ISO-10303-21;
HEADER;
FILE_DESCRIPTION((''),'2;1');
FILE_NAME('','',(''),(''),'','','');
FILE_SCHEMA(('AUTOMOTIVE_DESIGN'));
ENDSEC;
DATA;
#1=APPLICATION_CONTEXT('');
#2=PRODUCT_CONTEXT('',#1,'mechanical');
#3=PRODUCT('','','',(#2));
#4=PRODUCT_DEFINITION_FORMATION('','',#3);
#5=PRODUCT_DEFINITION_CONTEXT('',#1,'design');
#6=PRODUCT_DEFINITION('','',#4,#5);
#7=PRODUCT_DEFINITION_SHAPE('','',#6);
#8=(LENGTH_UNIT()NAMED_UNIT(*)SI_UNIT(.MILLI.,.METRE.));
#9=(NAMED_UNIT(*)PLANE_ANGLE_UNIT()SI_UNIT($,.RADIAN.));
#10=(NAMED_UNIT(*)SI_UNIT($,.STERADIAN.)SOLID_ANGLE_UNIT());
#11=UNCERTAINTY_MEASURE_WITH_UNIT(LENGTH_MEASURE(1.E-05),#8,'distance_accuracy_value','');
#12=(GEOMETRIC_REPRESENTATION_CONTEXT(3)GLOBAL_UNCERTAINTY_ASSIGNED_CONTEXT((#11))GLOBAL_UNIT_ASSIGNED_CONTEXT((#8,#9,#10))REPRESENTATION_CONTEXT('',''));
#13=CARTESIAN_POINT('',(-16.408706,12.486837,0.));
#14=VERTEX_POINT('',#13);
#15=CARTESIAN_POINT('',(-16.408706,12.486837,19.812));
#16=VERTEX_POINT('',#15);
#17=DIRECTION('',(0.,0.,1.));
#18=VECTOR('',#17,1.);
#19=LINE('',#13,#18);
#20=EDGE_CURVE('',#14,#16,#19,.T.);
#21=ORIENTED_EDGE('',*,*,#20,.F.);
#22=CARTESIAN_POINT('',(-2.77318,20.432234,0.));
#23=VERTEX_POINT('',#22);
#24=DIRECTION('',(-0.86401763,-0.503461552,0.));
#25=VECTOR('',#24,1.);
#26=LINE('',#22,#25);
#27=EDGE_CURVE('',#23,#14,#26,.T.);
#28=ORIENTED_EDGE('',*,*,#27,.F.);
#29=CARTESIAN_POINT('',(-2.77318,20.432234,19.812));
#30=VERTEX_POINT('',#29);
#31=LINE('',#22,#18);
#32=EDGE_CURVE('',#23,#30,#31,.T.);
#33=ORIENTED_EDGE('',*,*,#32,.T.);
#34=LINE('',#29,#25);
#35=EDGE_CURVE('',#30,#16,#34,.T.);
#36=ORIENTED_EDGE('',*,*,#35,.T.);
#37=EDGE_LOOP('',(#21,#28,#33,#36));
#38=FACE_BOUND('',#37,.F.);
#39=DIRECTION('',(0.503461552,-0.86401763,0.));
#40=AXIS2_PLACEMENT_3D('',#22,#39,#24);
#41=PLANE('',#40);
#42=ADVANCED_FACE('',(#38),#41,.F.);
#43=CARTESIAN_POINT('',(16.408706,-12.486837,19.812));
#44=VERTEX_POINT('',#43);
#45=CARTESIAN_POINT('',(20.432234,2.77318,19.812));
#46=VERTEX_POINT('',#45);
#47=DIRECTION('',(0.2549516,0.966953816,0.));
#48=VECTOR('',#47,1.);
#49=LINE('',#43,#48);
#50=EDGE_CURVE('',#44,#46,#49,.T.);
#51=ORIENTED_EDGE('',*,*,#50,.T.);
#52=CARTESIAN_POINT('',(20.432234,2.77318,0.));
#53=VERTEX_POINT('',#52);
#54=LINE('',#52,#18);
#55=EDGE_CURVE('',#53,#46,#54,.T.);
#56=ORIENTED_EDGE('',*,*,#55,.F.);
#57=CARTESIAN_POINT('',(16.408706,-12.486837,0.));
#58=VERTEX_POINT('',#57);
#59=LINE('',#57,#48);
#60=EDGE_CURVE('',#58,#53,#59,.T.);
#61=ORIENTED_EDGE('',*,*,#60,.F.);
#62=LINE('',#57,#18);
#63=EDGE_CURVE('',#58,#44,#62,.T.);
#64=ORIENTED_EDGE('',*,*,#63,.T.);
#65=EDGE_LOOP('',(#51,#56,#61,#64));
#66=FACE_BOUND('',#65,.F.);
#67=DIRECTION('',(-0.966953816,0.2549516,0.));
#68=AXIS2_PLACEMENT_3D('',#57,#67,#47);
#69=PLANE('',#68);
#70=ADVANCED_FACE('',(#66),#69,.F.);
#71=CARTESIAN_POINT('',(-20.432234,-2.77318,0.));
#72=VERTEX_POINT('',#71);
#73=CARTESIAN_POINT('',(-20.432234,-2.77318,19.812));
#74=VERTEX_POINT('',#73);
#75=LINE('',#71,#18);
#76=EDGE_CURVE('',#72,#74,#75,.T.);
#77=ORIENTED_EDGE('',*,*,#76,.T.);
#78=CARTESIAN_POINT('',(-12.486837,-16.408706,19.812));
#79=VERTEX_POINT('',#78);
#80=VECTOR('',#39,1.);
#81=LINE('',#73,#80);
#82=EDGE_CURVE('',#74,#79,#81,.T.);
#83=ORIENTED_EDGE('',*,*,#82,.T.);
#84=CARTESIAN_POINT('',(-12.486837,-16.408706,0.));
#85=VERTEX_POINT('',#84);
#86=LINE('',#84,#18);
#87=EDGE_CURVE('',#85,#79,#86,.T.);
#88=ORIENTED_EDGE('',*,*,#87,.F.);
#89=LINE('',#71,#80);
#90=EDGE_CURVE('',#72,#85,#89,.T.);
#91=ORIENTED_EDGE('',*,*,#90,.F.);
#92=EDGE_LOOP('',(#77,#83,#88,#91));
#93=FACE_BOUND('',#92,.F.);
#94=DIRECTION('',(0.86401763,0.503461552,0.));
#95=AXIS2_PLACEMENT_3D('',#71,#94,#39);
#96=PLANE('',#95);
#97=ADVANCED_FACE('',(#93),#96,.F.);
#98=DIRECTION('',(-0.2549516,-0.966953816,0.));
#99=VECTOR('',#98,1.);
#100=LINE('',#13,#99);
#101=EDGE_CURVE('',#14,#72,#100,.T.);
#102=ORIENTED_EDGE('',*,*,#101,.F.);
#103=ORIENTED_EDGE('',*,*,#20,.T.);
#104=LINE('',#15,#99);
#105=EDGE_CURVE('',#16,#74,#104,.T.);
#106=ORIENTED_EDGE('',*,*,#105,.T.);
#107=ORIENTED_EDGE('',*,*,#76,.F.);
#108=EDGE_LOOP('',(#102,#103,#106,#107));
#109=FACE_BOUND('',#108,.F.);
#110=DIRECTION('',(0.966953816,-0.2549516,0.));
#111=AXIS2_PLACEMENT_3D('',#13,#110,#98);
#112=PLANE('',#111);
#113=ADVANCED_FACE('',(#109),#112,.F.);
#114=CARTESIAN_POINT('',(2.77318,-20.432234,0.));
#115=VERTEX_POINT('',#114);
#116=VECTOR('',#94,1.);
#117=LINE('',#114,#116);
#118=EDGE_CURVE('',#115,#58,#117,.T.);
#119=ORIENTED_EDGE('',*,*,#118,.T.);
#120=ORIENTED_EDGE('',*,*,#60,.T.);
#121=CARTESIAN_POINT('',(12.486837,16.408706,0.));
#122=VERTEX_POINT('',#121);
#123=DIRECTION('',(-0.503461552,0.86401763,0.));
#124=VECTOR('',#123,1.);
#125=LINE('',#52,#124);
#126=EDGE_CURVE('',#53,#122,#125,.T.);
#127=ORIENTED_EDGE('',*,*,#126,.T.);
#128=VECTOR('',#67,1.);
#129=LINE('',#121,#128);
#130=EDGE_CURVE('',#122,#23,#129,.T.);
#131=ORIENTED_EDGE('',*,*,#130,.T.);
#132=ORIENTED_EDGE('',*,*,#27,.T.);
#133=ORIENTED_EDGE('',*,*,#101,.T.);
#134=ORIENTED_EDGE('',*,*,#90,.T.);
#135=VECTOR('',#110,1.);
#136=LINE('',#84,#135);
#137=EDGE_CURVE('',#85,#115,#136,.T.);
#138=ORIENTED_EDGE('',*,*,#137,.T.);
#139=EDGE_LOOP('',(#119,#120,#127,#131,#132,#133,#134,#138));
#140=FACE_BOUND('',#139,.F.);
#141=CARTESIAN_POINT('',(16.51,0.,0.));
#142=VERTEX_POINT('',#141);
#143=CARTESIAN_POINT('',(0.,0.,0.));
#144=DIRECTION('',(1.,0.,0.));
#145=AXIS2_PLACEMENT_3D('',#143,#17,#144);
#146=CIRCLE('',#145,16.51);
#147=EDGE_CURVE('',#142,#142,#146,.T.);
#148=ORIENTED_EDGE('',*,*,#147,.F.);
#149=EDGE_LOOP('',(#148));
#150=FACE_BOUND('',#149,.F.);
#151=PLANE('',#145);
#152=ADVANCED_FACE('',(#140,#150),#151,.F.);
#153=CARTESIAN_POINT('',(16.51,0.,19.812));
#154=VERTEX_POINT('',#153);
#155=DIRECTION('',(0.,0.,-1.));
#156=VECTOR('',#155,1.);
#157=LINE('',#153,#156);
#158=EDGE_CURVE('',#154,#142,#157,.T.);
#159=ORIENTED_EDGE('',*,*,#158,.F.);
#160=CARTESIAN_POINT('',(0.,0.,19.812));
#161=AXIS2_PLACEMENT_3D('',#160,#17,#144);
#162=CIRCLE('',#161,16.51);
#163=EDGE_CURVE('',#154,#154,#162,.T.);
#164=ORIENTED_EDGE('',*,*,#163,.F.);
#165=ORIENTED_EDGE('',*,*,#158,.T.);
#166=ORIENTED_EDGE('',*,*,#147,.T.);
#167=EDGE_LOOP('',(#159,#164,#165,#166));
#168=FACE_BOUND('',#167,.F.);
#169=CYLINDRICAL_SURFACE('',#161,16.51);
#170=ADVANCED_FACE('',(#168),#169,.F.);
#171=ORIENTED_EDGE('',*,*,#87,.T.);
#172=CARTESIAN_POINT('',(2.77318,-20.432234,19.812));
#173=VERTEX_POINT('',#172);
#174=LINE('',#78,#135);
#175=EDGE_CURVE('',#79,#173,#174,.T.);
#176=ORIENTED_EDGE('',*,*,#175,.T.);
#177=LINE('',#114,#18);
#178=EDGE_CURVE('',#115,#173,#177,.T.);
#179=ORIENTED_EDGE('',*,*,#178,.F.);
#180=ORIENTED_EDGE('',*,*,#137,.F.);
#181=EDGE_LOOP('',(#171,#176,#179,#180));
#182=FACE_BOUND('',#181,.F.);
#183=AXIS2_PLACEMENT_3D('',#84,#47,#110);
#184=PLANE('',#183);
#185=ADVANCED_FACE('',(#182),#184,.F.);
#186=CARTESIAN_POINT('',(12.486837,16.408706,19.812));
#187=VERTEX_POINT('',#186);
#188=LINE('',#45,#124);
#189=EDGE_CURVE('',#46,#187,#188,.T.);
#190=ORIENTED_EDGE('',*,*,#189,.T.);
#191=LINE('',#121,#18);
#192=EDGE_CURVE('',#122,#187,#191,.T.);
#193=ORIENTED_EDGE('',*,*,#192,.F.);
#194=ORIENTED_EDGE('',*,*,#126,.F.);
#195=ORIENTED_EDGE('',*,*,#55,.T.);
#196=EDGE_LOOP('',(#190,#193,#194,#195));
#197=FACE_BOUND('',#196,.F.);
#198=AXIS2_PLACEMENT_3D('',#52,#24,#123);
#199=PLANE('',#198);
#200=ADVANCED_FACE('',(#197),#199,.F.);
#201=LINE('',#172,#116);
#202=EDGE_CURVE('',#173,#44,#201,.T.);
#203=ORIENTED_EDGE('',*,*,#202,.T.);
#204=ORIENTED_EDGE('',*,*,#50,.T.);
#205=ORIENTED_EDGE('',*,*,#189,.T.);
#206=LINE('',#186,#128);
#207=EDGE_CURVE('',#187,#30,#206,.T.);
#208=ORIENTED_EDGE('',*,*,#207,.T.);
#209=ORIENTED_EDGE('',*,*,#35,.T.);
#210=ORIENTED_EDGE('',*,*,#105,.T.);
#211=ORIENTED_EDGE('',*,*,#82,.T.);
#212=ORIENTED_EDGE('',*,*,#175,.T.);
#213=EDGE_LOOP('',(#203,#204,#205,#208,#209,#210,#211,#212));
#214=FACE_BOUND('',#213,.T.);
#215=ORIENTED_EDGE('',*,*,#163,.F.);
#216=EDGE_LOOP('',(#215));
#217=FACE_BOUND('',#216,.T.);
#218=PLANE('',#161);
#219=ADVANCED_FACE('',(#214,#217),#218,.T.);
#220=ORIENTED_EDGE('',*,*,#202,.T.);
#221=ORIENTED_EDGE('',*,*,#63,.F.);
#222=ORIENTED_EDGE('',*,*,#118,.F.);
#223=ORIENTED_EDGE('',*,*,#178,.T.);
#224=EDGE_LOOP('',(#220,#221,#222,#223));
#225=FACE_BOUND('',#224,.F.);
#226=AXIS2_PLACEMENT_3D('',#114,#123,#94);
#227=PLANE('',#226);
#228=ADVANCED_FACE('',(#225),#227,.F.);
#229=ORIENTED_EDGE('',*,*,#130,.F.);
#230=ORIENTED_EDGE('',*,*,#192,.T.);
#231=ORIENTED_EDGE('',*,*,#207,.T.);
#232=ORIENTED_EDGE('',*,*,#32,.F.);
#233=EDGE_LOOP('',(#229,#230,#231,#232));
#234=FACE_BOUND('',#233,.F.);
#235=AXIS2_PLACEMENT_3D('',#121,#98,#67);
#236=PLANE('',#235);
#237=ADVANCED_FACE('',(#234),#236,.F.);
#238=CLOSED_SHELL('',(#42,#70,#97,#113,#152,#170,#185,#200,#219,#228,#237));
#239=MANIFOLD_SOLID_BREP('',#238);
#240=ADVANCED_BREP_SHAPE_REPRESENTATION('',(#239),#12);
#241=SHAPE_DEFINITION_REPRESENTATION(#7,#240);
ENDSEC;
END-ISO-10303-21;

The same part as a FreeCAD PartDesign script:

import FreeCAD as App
import Part
import Sketcher
Q = App.Units.Quantity


def add_polygon(sketch, points):
    """Adds a closed chain of lines whose ends are joined by coincident constraints."""
    first, n = sketch.GeometryCount, len(points)
    for a, b in zip(points, points[1:] + points[:1]):
        sketch.addGeometry(Part.LineSegment(App.Vector(*a, 0), App.Vector(*b, 0)), False)
    for i in range(n):
        sketch.addConstraint(Sketcher.Constraint("Coincident", first + i, 2, first + (i + 1) % n, 1))

doc = App.newDocument("Part")
params = doc.addObject("Spreadsheet::Sheet", "Params")
for row, (alias, value) in enumerate([
    ("pad1_length", "0.78 in"),
    ("sketch2_diameter", "1.3 in"),
    ("pocket1_length", "1 in"),
], start=1):
    params.set(f"A{row}", alias)
    params.set(f"B{row}", "=" + value)
    params.setAlias(f"B{row}", alias)

body = doc.addObject("PartDesign::Body", "Body")

# Sketch on XY plane
sketch1 = body.newObject("Sketcher::SketchObject", "Sketch")
sketch1.AttachmentSupport = (doc.getObject("XY_Plane"), [""])
sketch1.MapMode = "FlatFace"
add_polygon(sketch1, [(20, 3), (12, 16), (-3, 20), (-16, 12), (-20, -3), (-12, -16), (3, -20), (16, -12)])  # lines 0-7
sketch1.addConstraint([
    Sketcher.Constraint("Symmetric", 0, 2, 4, 2, -1, 1),
    Sketcher.Constraint("Symmetric", 1, 2, 5, 2, -1, 1),
    Sketcher.Constraint("Symmetric", 2, 2, 6, 2, -1, 1),
    Sketcher.Constraint("Symmetric", 3, 2, 7, 2, -1, 1),
    Sketcher.Constraint("Perpendicular", 0, 2),
    Sketcher.Constraint("Perpendicular", 1, 3),
    Sketcher.Constraint("Equal", 0, 1),
    Sketcher.Constraint("Equal", 1, 2),
    Sketcher.Constraint("Equal", 2, 3),
    Sketcher.Constraint("DistanceX", 1, 2, -1, 1, Q("2.77318 mm")),
    Sketcher.Constraint("DistanceY", 0, 2, 1, 2, Q("4.023528 mm")),
    Sketcher.Constraint("DistanceY", 2, 2, 0, 2, Q("3.921869 mm")),
])
pad1 = body.newObject("PartDesign::Pad", "Pad")
pad1.Profile = sketch1
pad1.setExpression("Length", "Params.pad1_length")

# Sketch on XY plane
sketch2 = body.newObject("Sketcher::SketchObject", "Sketch001")
sketch2.AttachmentSupport = (doc.getObject("XY_Plane"), [""])
sketch2.MapMode = "FlatFace"
sketch2.AttachmentOffset = App.Placement(App.Vector(0, 0, 0.78 * 25.4), App.Rotation())
sketch2.addGeometry(Part.Circle(App.Vector(0, 0, 0), App.Vector(0, 0, 1), 17), False)
sketch2.addConstraint([
    Sketcher.Constraint("Coincident", 0, 3, -1, 1),
    Sketcher.Constraint("Diameter", 0, Q("1.3 in")),
])
sketch2.setExpression("Constraints[1]", "Params.sketch2_diameter")
pocket1 = body.newObject("PartDesign::Pocket", "Pocket")
pocket1.Profile = sketch2
pocket1.setExpression("Length", "Params.pocket1_length")

doc.recompute()
